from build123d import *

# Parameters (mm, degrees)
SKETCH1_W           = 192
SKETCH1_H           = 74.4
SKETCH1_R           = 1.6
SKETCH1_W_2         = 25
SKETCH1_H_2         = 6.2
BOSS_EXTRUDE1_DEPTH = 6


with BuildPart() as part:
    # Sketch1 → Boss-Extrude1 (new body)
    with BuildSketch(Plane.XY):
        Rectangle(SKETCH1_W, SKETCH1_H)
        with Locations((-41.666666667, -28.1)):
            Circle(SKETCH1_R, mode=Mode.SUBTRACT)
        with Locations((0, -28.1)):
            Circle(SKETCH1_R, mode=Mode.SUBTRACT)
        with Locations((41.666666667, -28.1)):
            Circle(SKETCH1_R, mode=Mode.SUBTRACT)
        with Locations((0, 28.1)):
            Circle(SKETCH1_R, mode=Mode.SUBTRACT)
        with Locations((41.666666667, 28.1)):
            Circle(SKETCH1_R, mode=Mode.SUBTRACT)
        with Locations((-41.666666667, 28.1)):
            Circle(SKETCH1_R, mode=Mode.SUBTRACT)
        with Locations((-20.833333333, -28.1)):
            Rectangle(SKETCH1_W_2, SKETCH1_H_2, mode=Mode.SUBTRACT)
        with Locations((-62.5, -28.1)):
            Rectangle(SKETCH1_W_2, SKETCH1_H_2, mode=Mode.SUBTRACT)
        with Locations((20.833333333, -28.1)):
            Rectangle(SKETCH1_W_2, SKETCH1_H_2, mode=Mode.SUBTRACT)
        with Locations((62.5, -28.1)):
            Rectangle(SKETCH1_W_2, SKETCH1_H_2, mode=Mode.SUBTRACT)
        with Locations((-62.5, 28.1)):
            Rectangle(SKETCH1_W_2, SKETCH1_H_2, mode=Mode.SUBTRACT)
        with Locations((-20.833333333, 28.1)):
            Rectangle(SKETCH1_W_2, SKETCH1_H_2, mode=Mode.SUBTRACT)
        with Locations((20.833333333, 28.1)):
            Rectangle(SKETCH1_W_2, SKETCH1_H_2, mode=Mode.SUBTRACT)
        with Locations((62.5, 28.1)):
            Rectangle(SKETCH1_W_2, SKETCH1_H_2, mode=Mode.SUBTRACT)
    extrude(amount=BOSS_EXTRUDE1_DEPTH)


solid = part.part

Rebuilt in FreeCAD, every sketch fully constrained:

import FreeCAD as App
import Part
import Sketcher

V = App.Vector


def add_polygon(sketch, points):
    """Adds a closed chain of lines whose ends are joined by coincident constraints."""
    first, n = sketch.GeometryCount, len(points)
    for a, b in zip(points, points[1:] + points[:1]):
        sketch.addGeometry(Part.LineSegment(App.Vector(*a, 0), App.Vector(*b, 0)), False)
    for i in range(n):
        sketch.addConstraint(Sketcher.Constraint("Coincident", first + i, 2, first + (i + 1) % n, 1))

doc = App.newDocument("Part")
body = doc.addObject("PartDesign::Body", "Body")

# Sketch on XY plane
sketch1 = body.newObject("Sketcher::SketchObject", "Sketch")
sketch1.AttachmentSupport = (doc.getObject("XY_Plane"), [""])
sketch1.MapMode = "FlatFace"
add_polygon(sketch1, [(-96, 37.2), (-96, -37.2), (96, -37.2), (96, 37.2)])  # lines 0-3
add_polygon(sketch1, [(-50, -31.2), (-75, -31.2), (-75, -25), (-50, -25)])  # lines 4-7
sketch1.addGeometry(Part.Circle(V(-41.7, -28.1, 0), V(0, 0, 1), 1.6), False)  # 8
add_polygon(sketch1, [(-8.3, -31.2), (-33.3, -31.2), (-33.3, -25), (-8.3, -25)])  # lines 9-12
sketch1.addGeometry(Part.Circle(V(0, -28.1, 0), V(0, 0, 1), 1.6), False)  # 13
add_polygon(sketch1, [(33.3, -31.2), (8.3, -31.2), (8.3, -25), (33.3, -25)])  # lines 14-17
sketch1.addGeometry(Part.Circle(V(41.7, -28.1, 0), V(0, 0, 1), 1.6), False)  # 18
add_polygon(sketch1, [(75, -31.2), (50, -31.2), (50, -25), (75, -25)])  # lines 19-22
add_polygon(sketch1, [(-50, 25), (-75, 25), (-75, 31.2), (-50, 31.2)])  # lines 23-26
sketch1.addGeometry(Part.Circle(V(-41.7, 28.1, 0), V(0, 0, 1), 1.6), False)  # 27
add_polygon(sketch1, [(-8.3, 25), (-33.3, 25), (-33.3, 31.2), (-8.3, 31.2)])  # lines 28-31
sketch1.addGeometry(Part.Circle(V(0, 28.1, 0), V(0, 0, 1), 1.6), False)  # 32
add_polygon(sketch1, [(33.3, 25), (8.3, 25), (8.3, 31.2), (33.3, 31.2)])  # lines 33-36
sketch1.addGeometry(Part.Circle(V(41.7, 28.1, 0), V(0, 0, 1), 1.6), False)  # 37
add_polygon(sketch1, [(75, 25), (50, 25), (50, 31.2), (75, 31.2)])  # lines 38-41
sketch1.addConstraint([
    Sketcher.Constraint("Vertical", 0),
    Sketcher.Constraint("Horizontal", 1),
    Sketcher.Constraint("Vertical", 2),
    Sketcher.Constraint("Horizontal", 3),
    Sketcher.Constraint("Horizontal", 4),
    Sketcher.Constraint("Vertical", 5),
    Sketcher.Constraint("Horizontal", 6),
    Sketcher.Constraint("Vertical", 7),
    Sketcher.Constraint("Horizontal", 9),
    Sketcher.Constraint("Vertical", 10),
    Sketcher.Constraint("Horizontal", 11),
    Sketcher.Constraint("Vertical", 12),
    Sketcher.Constraint("Horizontal", 14),
    Sketcher.Constraint("Vertical", 15),
    Sketcher.Constraint("Horizontal", 16),
    Sketcher.Constraint("Vertical", 17),
    Sketcher.Constraint("Horizontal", 19),
    Sketcher.Constraint("Vertical", 20),
    Sketcher.Constraint("Horizontal", 21),
    Sketcher.Constraint("Vertical", 22),
    Sketcher.Constraint("Horizontal", 23),
    Sketcher.Constraint("Vertical", 24),
    Sketcher.Constraint("Horizontal", 25),
    Sketcher.Constraint("Vertical", 26),
    Sketcher.Constraint("Horizontal", 28),
    Sketcher.Constraint("Vertical", 29),
    Sketcher.Constraint("Horizontal", 30),
    Sketcher.Constraint("Vertical", 31),
    Sketcher.Constraint("Horizontal", 33),
    Sketcher.Constraint("Vertical", 34),
    Sketcher.Constraint("Horizontal", 35),
    Sketcher.Constraint("Vertical", 36),
    Sketcher.Constraint("Horizontal", 38),
    Sketcher.Constraint("Vertical", 39),
    Sketcher.Constraint("Horizontal", 40),
    Sketcher.Constraint("Vertical", 41),
    Sketcher.Constraint("Equal", 8, 13),
    Sketcher.Constraint("Equal", 13, 18),
    Sketcher.Constraint("Equal", 18, 27),
    Sketcher.Constraint("Equal", 27, 32),
    Sketcher.Constraint("Equal", 32, 37),
    Sketcher.Constraint("Symmetric", 18, 3, 27, 3, -1, 1),
    Sketcher.Constraint("Symmetric", 13, 3, 32, 3, -1, 1),
    Sketcher.Constraint("Symmetric", 8, 3, 37, 3, -1, 1),
    Sketcher.Constraint("Symmetric", 0, 2, 2, 2, -1, 1),
    Sketcher.Constraint("Symmetric", 21, 2, 23, 2, -1, 1),
    Sketcher.Constraint("Symmetric", 19, 2, 25, 2, -1, 1),
    Sketcher.Constraint("Symmetric", 16, 2, 28, 2, -1, 1),
    Sketcher.Constraint("Symmetric", 14, 2, 30, 2, -1, 1),
    Sketcher.Constraint("Symmetric", 11, 2, 33, 2, -1, 1),
    Sketcher.Constraint("Symmetric", 9, 2, 35, 2, -1, 1),
    Sketcher.Constraint("Symmetric", 6, 2, 38, 2, -1, 1),
    Sketcher.Constraint("Symmetric", 4, 2, 40, 2, -1, 1),
    Sketcher.Constraint("Symmetric", 8, 3, 18, 3, -2),
    Sketcher.Constraint("Symmetric", 12, 2, 14, 2, -2),
    Sketcher.Constraint("Symmetric", 10, 2, 16, 2, -2),
    Sketcher.Constraint("Symmetric", 7, 2, 19, 2, -2),
    Sketcher.Constraint("Symmetric", 5, 2, 21, 2, -2),
    Sketcher.Constraint("PointOnObject", 13, 3, -2),
    Sketcher.Constraint("Horizontal", 8, 3, 13, 3),
    Sketcher.Constraint("Horizontal", 7, 2, 9, 2),
    Sketcher.Constraint("Horizontal", 6, 2, 10, 2),
    Sketcher.Constraint("Equal", 6, 9),
    Sketcher.Constraint("Diameter", 8, 3.2),
    Sketcher.Constraint("DistanceX", 1, 1, 1, 2, 192.0),
    Sketcher.Constraint("DistanceX", 4, 2, 4, 1, 25.0),
    Sketcher.Constraint("DistanceY", 0, 2, 0, 1, 74.4),
    Sketcher.Constraint("DistanceY", 5, 1, 5, 2, 6.2),
    Sketcher.Constraint("DistanceX", 4, 2, -1, 1, 75.0),
    Sketcher.Constraint("DistanceY", 5, 2, -1, 1, 25.0),
    Sketcher.Constraint("DistanceY", 8, 3, -1, 1, 28.1),
    Sketcher.Constraint("DistanceX", 8, 3, -1, 1, 41.666667),
    Sketcher.Constraint("DistanceX", 9, 2, -1, 1, 33.333333),
])
pad1 = body.newObject("PartDesign::Pad", "Pad")
pad1.Profile = sketch1
pad1.Length = 6

doc.recompute()
